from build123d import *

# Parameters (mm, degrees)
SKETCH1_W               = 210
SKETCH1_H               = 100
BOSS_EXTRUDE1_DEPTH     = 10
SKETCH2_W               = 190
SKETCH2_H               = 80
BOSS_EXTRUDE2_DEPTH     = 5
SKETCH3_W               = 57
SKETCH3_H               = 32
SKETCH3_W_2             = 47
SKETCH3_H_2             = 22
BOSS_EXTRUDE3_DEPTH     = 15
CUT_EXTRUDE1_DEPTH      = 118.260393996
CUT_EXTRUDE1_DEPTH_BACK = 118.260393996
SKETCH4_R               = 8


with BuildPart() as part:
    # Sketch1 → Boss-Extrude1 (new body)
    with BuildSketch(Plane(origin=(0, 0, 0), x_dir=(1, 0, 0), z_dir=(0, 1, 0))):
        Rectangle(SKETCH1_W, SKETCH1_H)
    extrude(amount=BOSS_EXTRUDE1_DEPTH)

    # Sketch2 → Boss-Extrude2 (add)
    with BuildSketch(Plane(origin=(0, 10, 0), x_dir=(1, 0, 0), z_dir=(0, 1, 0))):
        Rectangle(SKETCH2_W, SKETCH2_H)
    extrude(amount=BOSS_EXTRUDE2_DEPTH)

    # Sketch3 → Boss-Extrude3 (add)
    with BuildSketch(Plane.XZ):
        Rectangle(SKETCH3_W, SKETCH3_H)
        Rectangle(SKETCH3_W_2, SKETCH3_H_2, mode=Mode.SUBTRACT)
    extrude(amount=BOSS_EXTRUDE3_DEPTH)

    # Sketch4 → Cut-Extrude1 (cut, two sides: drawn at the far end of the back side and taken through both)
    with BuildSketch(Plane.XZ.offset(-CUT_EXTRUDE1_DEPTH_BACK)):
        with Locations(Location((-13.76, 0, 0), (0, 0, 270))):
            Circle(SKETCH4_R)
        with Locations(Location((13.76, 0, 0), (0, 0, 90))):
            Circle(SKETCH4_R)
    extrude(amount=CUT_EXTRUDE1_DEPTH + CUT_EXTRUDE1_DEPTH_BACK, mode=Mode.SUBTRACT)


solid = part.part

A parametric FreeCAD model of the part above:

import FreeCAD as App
import Part
import Sketcher
Q = App.Units.Quantity

doc = App.newDocument("Part")
body = doc.addObject("PartDesign::Body", "Body")

# Sketch on XZ plane
sketch1 = body.newObject("Sketcher::SketchObject", "Sketch")
sketch1.AttachmentSupport = (doc.getObject("XZ_Plane"), [""])
sketch1.MapMode = "FlatFace"
sketch1.addGeometry([
    Part.LineSegment(App.Vector(-105, -50, 0), App.Vector(-105, 50, 0)),
    Part.LineSegment(App.Vector(-105, 50, 0), App.Vector(105, 50, 0)),
    Part.LineSegment(App.Vector(105, 50, 0), App.Vector(105, -50, 0)),
    Part.LineSegment(App.Vector(105, -50, 0), App.Vector(-105, -50, 0)),
], False)
sketch1.addConstraint([
    Sketcher.Constraint("Coincident", 0, 2, 1, 1),
    Sketcher.Constraint("Coincident", 1, 2, 2, 1),
    Sketcher.Constraint("Coincident", 2, 2, 3, 1),
    Sketcher.Constraint("Coincident", 3, 2, 0, 1),
    Sketcher.Constraint("Vertical", 0),
    Sketcher.Constraint("Horizontal", 1),
    Sketcher.Constraint("Vertical", 2),
    Sketcher.Constraint("Horizontal", 3),
    Sketcher.Constraint("Symmetric", 0, 2, 2, 2, -1, 1),
    Sketcher.Constraint("DistanceX", 1, 1, 1, 2, Q("210 mm")),
    Sketcher.Constraint("DistanceY", 0, 1, 0, 2, Q("100 mm")),
])
pad1 = body.newObject("PartDesign::Pad", "Pad")
pad1.Profile = sketch1
pad1.Length = 10
pad1.Reversed = True

# Sketch on XZ plane
sketch2 = body.newObject("Sketcher::SketchObject", "Sketch001")
sketch2.AttachmentSupport = (doc.getObject("XZ_Plane"), [""])
sketch2.MapMode = "FlatFace"
sketch2.AttachmentOffset = App.Placement(App.Vector(0, 0, -10), App.Rotation())
sketch2.addGeometry([
    Part.LineSegment(App.Vector(-95, -40, 0), App.Vector(-95, 40, 0)),
    Part.LineSegment(App.Vector(-95, 40, 0), App.Vector(95, 40, 0)),
    Part.LineSegment(App.Vector(95, 40, 0), App.Vector(95, -40, 0)),
    Part.LineSegment(App.Vector(95, -40, 0), App.Vector(-95, -40, 0)),
], False)
sketch2.addConstraint([
    Sketcher.Constraint("Coincident", 0, 2, 1, 1),
    Sketcher.Constraint("Coincident", 1, 2, 2, 1),
    Sketcher.Constraint("Coincident", 2, 2, 3, 1),
    Sketcher.Constraint("Coincident", 3, 2, 0, 1),
    Sketcher.Constraint("Vertical", 0),
    Sketcher.Constraint("Horizontal", 1),
    Sketcher.Constraint("Vertical", 2),
    Sketcher.Constraint("Horizontal", 3),
    Sketcher.Constraint("Symmetric", 0, 2, 2, 2, -1, 1),
    Sketcher.Constraint("DistanceX", 1, 1, 1, 2, Q("190 mm")),
    Sketcher.Constraint("DistanceY", 0, 1, 0, 2, Q("80 mm")),
])
pad2 = body.newObject("PartDesign::Pad", "Pad001")
pad2.Profile = sketch2
pad2.Length = 5
pad2.Reversed = True

# Sketch on XZ plane
sketch3 = body.newObject("Sketcher::SketchObject", "Sketch002")
sketch3.AttachmentSupport = (doc.getObject("XZ_Plane"), [""])
sketch3.MapMode = "FlatFace"
sketch3.addGeometry([
    Part.LineSegment(App.Vector(-28, 16, 0), App.Vector(-28, -16, 0)),  # 0
    Part.LineSegment(App.Vector(-28, -16, 0), App.Vector(28, -16, 0)),  # 1
    Part.LineSegment(App.Vector(28, -16, 0), App.Vector(28, 16, 0)),  # 2
    Part.LineSegment(App.Vector(28, 16, 0), App.Vector(-28, 16, 0)),  # 3
    Part.LineSegment(App.Vector(24, -11, 0), App.Vector(-24, -11, 0)),  # 4
    Part.LineSegment(App.Vector(-24, -11, 0), App.Vector(-24, 11, 0)),  # 5
    Part.LineSegment(App.Vector(-24, 11, 0), App.Vector(24, 11, 0)),  # 6
    Part.LineSegment(App.Vector(24, 11, 0), App.Vector(24, -11, 0)),  # 7
], False)
sketch3.addConstraint([
    Sketcher.Constraint("Coincident", 0, 2, 1, 1),
    Sketcher.Constraint("Coincident", 1, 2, 2, 1),
    Sketcher.Constraint("Coincident", 2, 2, 3, 1),
    Sketcher.Constraint("Coincident", 3, 2, 0, 1),
    Sketcher.Constraint("Coincident", 4, 2, 5, 1),
    Sketcher.Constraint("Coincident", 5, 2, 6, 1),
    Sketcher.Constraint("Coincident", 6, 2, 7, 1),
    Sketcher.Constraint("Coincident", 7, 2, 4, 1),
    Sketcher.Constraint("Vertical", 0),
    Sketcher.Constraint("Horizontal", 1),
    Sketcher.Constraint("Vertical", 2),
    Sketcher.Constraint("Horizontal", 3),
    Sketcher.Constraint("Horizontal", 4),
    Sketcher.Constraint("Vertical", 5),
    Sketcher.Constraint("Horizontal", 6),
    Sketcher.Constraint("Vertical", 7),
    Sketcher.Constraint("Symmetric", 0, 2, 2, 2, -1, 1),
    Sketcher.Constraint("Symmetric", 4, 2, 6, 2, -1, 1),
    Sketcher.Constraint("DistanceX", 1, 1, 1, 2, Q("57 mm")),
    Sketcher.Constraint("DistanceX", 4, 2, 4, 1, Q("47 mm")),
    Sketcher.Constraint("DistanceY", 0, 2, 0, 1, Q("32 mm")),
    Sketcher.Constraint("DistanceY", 5, 1, 5, 2, Q("22 mm")),
])
pad3 = body.newObject("PartDesign::Pad", "Pad002")
pad3.Profile = sketch3
pad3.Length = 15

# Sketch on XZ plane
sketch4 = body.newObject("Sketcher::SketchObject", "Sketch003")
sketch4.AttachmentSupport = (doc.getObject("XZ_Plane"), [""])
sketch4.MapMode = "FlatFace"
sketch4.addGeometry([
    Part.Circle(App.Vector(-14, 0, 0), App.Vector(0, 0, 1), 8),
    Part.Circle(App.Vector(14, 0, 0), App.Vector(0, 0, 1), 8),
], False)
sketch4.addConstraint([
    Sketcher.Constraint("Equal", 0, 1),
    Sketcher.Constraint("Symmetric", 0, 3, 1, 3, -1, 1),
    Sketcher.Constraint("PointOnObject", 0, 3, -1),
    Sketcher.Constraint("Diameter", 0, Q("16 mm")),
    Sketcher.Constraint("DistanceX", 0, 3, -1, 1, Q("13.76 mm")),
])
pocket1 = body.newObject("PartDesign::Pocket", "Pocket")
pocket1.Profile = sketch4
pocket1.Type = "ThroughAll"
pocket1.Midplane = True

doc.recompute()
